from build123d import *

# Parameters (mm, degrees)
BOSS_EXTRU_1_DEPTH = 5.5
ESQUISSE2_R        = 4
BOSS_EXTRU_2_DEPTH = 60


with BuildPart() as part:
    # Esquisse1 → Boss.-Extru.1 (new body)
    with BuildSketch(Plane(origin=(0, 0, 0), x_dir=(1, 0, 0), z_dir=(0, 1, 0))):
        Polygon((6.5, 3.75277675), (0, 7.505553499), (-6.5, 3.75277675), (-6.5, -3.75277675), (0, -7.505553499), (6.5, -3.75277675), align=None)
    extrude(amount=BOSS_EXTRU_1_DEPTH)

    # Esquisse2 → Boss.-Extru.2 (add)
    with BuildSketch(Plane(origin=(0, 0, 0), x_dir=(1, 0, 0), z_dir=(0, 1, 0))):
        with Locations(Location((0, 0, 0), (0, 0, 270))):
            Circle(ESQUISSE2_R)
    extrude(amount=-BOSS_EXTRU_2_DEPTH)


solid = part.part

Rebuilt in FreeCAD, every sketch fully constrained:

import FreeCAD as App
import Part
import Sketcher
from FreeCAD import Vector
Q = App.Units.Quantity


def add_polygon(sketch, points):
    """Adds a closed chain of lines whose ends are joined by coincident constraints."""
    first, n = sketch.GeometryCount, len(points)
    for a, b in zip(points, points[1:] + points[:1]):
        sketch.addGeometry(Part.LineSegment(App.Vector(*a, 0), App.Vector(*b, 0)), False)
    for i in range(n):
        sketch.addConstraint(Sketcher.Constraint("Coincident", first + i, 2, first + (i + 1) % n, 1))

doc = App.newDocument("Part")
body = doc.addObject("PartDesign::Body", "Body")

sketch1 = body.newObject("Sketcher::SketchObject", "Sketch")
sketch1.AttachmentSupport = (doc.getObject("XZ_Plane"), [""])
sketch1.MapMode = "FlatFace"
add_polygon(sketch1, [(6, -4), (0, -8), (-6, -4), (-6, 4), (0, 8), (6, 4)])
sketch1.addConstraint(Sketcher.Constraint("Vertical", 2))
sketch1.addConstraint(Sketcher.Constraint("Vertical", 5))
sketch1.addConstraint(Sketcher.Constraint("Symmetric", 0, 2, 3, 2, -1, 1))
sketch1.addConstraint(Sketcher.Constraint("Symmetric", 1, 2, 4, 2, -1, 1))
sketch1.addConstraint(Sketcher.Constraint("PointOnObject", 0, 2, -2))
sketch1.addConstraint(Sketcher.Constraint("Parallel", 0, 3))
sketch1.addConstraint(Sketcher.Constraint("Horizontal", 2, 2, 4, 2))
sketch1.addConstraint(Sketcher.Constraint("Angle", 0, Q("-150 deg")))
sketch1.addConstraint(Sketcher.Constraint("DistanceX", 2, 2, 4, 2, 13.0))
sketch1.addConstraint(Sketcher.Constraint("DistanceY", 2, 1, 2, 2, 7.505554))
pad1 = body.newObject("PartDesign::Pad", "Pad")
pad1.Profile = sketch1
pad1.Length = 5.5
pad1.Reversed = True

sketch2 = body.newObject("Sketcher::SketchObject", "Sketch001")
sketch2.AttachmentSupport = (doc.getObject("XZ_Plane"), [""])
sketch2.MapMode = "FlatFace"
sketch2.addGeometry(Part.Circle(Vector(0, 0, 0), Vector(0, 0, 1), 4), False)
sketch2.addConstraint(Sketcher.Constraint("Coincident", 0, 3, -1, 1))
sketch2.addConstraint(Sketcher.Constraint("Diameter", 0, 8.0))
pad2 = body.newObject("PartDesign::Pad", "Pad001")
pad2.Profile = sketch2
pad2.Length = 60

doc.recompute()
